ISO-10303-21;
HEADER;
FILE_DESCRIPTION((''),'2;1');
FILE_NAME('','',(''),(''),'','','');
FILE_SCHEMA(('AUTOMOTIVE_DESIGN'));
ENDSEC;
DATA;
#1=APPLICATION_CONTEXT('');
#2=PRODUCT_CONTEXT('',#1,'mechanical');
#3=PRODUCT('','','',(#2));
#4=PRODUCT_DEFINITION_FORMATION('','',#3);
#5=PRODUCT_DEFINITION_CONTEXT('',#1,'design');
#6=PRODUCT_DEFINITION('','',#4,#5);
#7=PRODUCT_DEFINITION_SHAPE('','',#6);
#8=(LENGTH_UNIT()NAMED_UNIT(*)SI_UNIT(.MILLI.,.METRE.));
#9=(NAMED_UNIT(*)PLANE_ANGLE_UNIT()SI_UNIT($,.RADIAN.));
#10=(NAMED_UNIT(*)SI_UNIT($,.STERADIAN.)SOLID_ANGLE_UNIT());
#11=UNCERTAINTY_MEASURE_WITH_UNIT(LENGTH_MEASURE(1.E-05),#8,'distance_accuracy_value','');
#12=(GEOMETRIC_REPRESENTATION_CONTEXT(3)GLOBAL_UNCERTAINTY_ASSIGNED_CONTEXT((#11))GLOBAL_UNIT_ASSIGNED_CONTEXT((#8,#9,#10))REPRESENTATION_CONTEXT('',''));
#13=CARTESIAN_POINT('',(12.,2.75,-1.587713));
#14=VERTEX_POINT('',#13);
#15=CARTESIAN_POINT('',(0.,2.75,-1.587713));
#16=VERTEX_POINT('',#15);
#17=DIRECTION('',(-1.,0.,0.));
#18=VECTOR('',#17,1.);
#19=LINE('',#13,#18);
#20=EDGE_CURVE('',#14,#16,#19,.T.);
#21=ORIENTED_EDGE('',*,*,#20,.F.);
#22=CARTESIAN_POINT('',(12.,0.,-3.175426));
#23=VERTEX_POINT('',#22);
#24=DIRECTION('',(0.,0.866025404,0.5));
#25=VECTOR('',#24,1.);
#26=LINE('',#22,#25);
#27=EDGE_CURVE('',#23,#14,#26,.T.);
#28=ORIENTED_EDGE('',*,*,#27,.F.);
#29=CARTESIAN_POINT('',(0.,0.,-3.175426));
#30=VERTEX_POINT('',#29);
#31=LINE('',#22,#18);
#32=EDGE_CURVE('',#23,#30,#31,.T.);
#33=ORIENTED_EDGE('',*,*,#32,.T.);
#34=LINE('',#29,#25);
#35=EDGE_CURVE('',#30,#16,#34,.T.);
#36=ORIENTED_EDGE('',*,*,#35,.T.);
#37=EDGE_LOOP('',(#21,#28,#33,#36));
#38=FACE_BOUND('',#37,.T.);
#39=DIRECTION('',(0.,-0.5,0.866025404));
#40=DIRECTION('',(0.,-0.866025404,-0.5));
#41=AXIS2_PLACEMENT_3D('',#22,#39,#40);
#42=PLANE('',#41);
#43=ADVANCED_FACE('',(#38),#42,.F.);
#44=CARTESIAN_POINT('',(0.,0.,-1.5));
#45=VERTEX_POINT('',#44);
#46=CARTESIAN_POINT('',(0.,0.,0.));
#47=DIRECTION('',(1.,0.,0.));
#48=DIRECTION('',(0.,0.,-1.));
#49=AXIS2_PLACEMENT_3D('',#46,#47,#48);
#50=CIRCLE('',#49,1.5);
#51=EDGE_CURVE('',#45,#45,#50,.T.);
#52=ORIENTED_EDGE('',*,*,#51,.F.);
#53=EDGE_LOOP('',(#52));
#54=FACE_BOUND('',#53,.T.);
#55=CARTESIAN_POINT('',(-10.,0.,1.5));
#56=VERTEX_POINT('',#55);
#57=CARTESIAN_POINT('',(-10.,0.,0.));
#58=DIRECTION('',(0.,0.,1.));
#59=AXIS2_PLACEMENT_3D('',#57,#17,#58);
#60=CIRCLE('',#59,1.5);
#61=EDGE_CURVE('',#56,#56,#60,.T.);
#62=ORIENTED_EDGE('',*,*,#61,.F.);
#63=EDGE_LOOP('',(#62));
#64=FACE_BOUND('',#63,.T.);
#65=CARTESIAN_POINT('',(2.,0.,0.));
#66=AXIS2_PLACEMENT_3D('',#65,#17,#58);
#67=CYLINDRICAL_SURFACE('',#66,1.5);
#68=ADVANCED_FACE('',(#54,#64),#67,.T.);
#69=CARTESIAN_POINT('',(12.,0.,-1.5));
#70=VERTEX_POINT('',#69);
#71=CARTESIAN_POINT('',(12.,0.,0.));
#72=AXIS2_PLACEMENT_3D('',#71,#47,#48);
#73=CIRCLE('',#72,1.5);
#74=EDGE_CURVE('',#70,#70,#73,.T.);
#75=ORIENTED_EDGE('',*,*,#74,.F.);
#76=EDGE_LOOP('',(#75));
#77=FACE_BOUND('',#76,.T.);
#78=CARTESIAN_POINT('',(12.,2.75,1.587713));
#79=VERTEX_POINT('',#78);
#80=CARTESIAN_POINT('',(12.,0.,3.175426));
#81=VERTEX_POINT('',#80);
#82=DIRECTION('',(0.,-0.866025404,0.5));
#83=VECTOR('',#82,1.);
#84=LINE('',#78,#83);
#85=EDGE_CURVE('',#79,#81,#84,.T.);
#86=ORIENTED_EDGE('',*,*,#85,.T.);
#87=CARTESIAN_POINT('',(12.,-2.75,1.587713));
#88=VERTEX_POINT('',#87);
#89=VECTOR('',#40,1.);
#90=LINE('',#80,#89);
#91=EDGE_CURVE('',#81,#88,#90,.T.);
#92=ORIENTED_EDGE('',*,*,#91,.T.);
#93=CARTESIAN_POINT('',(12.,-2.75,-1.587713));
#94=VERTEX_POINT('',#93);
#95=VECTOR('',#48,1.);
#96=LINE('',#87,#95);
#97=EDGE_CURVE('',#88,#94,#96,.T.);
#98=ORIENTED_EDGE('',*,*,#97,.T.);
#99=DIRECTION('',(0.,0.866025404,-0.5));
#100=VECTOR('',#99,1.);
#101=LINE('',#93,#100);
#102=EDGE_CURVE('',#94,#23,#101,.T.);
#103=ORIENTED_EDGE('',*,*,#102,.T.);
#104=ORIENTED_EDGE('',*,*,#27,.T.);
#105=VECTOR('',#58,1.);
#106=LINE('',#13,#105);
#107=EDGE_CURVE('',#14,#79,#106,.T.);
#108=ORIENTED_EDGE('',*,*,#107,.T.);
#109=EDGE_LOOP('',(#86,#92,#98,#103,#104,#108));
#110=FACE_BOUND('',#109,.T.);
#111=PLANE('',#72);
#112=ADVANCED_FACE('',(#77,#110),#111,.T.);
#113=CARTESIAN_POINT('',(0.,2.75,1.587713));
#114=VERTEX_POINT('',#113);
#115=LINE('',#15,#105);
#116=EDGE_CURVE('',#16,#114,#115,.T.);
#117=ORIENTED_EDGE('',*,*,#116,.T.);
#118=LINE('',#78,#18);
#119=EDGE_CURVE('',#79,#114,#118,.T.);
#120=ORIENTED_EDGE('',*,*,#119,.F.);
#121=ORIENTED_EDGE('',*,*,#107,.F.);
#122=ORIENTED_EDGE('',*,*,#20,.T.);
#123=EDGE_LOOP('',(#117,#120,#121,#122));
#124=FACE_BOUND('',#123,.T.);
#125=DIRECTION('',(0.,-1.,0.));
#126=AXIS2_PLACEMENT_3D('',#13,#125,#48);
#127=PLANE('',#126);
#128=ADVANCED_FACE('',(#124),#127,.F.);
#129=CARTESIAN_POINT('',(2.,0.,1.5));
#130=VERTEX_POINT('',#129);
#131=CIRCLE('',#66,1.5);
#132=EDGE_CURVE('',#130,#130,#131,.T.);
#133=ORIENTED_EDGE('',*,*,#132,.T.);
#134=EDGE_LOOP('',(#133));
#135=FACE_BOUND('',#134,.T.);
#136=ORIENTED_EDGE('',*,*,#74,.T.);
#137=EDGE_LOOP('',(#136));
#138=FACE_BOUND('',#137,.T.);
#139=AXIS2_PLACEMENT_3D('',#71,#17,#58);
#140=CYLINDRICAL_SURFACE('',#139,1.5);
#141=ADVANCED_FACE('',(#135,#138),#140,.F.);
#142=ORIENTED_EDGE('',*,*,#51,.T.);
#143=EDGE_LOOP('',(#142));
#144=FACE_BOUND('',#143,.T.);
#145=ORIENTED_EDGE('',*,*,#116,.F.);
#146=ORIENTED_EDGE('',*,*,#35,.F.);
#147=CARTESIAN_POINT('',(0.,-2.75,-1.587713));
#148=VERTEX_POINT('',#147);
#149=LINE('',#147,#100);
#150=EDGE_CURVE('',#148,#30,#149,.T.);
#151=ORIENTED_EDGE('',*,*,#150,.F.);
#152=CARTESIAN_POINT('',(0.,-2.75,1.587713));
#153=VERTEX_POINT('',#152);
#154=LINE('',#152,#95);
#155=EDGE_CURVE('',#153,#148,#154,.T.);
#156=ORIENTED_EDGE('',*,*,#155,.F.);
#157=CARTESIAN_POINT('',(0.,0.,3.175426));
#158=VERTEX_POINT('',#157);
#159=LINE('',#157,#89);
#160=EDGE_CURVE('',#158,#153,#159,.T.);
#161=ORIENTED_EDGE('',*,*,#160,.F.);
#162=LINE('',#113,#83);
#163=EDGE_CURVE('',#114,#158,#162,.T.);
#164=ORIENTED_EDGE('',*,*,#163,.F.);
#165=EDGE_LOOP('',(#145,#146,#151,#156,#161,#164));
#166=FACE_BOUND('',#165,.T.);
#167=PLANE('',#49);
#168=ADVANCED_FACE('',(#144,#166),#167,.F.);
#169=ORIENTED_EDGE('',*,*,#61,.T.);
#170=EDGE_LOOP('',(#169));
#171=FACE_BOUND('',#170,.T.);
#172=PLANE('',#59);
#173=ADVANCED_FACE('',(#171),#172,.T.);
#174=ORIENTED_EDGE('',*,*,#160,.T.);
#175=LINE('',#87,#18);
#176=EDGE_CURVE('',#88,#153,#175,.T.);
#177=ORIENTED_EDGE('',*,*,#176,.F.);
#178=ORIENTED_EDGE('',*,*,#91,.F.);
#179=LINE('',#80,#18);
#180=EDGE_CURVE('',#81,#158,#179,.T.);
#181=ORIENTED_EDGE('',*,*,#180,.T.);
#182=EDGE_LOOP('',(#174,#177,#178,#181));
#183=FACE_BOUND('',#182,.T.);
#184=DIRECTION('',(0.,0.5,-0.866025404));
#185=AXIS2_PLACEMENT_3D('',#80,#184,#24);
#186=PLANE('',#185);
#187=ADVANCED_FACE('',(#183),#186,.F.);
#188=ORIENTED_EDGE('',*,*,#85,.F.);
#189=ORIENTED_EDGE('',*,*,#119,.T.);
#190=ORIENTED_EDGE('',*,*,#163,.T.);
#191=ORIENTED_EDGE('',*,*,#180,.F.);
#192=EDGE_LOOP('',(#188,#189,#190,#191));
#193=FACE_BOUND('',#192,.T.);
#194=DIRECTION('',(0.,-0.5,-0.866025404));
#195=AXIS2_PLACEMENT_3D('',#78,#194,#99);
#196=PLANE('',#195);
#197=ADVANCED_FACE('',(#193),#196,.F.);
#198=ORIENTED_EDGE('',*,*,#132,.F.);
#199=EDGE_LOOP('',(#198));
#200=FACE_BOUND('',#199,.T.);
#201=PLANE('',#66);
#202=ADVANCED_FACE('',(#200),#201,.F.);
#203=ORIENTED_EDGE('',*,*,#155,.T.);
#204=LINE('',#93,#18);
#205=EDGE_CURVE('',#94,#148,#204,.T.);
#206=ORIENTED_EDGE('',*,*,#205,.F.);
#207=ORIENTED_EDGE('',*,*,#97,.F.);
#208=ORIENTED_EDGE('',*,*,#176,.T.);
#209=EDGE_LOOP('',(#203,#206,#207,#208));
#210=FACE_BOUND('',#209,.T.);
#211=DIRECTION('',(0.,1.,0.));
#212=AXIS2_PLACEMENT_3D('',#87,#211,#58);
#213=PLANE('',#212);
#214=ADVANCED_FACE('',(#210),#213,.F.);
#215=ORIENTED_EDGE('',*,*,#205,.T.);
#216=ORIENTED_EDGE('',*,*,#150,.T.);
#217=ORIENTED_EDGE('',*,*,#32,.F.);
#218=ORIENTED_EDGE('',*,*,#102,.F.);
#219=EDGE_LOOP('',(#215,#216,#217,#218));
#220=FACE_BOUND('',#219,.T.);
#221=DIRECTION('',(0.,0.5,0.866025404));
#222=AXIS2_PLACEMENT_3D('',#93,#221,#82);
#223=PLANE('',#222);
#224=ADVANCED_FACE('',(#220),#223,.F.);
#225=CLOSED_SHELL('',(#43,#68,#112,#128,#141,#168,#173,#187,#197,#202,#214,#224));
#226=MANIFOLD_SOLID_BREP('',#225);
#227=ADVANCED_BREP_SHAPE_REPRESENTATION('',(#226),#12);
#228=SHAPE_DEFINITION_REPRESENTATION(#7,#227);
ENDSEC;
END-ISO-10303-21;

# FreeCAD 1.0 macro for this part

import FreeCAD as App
import Part
import Sketcher
Q = App.Units.Quantity


def add_polygon(sketch, points):
    """Adds a closed chain of lines whose ends are joined by coincident constraints."""
    first, n = sketch.GeometryCount, len(points)
    for a, b in zip(points, points[1:] + points[:1]):
        sketch.addGeometry(Part.LineSegment(App.Vector(*a, 0), App.Vector(*b, 0)), False)
    for i in range(n):
        sketch.addConstraint(Sketcher.Constraint("Coincident", first + i, 2, first + (i + 1) % n, 1))

doc = App.newDocument("Part")
params = doc.addObject("Spreadsheet::Sheet", "Params")
for row, (alias, value) in enumerate([
    ("sketch1_diameter", "3 mm"),
    ("pad1_length", "12 mm"),
    ("sketch2_diameter", "3 mm"),
    ("pad2_length", "10 mm"),
    ("pad2_length2", "2 mm"),
], start=1):
    params.set(f"A{row}", alias)
    params.set(f"B{row}", "=" + value)
    params.setAlias(f"B{row}", alias)

body = doc.addObject("PartDesign::Body", "Body")

sketch1 = body.newObject("Sketcher::SketchObject", "Sketch")
sketch1.AttachmentSupport = (doc.getObject("YZ_Plane"), [""])
sketch1.MapMode = "FlatFace"
add_polygon(sketch1, [(2.8, -1.6), (2.8, 1.6), (0, 3.2), (-2.8, 1.6), (-2.8, -1.6), (0, -3.2)])
sketch1.addGeometry(Part.Circle(App.Vector(0, 0, 0), App.Vector(0, 0, 1), 1.5), False)
sketch1.addConstraint(Sketcher.Constraint("Vertical", 0))
sketch1.addConstraint(Sketcher.Constraint("Vertical", 3))
sketch1.addConstraint(Sketcher.Constraint("Coincident", 6, 3, -1, 1))
sketch1.addConstraint(Sketcher.Constraint("Symmetric", 0, 2, 3, 2, -1, 1))
sketch1.addConstraint(Sketcher.Constraint("Symmetric", 1, 2, 4, 2, -1, 1))
sketch1.addConstraint(Sketcher.Constraint("PointOnObject", 1, 2, -2))
sketch1.addConstraint(Sketcher.Constraint("Parallel", 2, 5))
sketch1.addConstraint(Sketcher.Constraint("Horizontal", 0, 2, 2, 2))
sketch1.addConstraint(Sketcher.Constraint("Diameter", 6, 3.0))
sketch1.addConstraint(Sketcher.Constraint("Angle", 1, Q("150 deg")))
sketch1.addConstraint(Sketcher.Constraint("DistanceX", 2, 2, 0, 2, 5.5))
sketch1.addConstraint(Sketcher.Constraint("DistanceY", 0, 1, 0, 2, 3.175426))
sketch1.setExpression("Constraints[14]", "Params.sketch1_diameter")
pad1 = body.newObject("PartDesign::Pad", "Pad")
pad1.Profile = sketch1
pad1.setExpression("Length", "Params.pad1_length")

sketch2 = body.newObject("Sketcher::SketchObject", "Sketch001")
sketch2.AttachmentSupport = (doc.getObject("YZ_Plane"), [""])
sketch2.MapMode = "FlatFace"
sketch2.addGeometry(Part.Circle(App.Vector(0, 0, 0), App.Vector(0, 0, 1), 1.5), False)
sketch2.addConstraint(Sketcher.Constraint("Coincident", 0, 3, -1, 1))
sketch2.addConstraint(Sketcher.Constraint("Diameter", 0, 3.0))
sketch2.setExpression("Constraints[1]", "Params.sketch2_diameter")
pad2 = body.newObject("PartDesign::Pad", "Pad001")
pad2.Profile = sketch2
pad2.Type = "TwoLengths"
pad2.setExpression("Length", "Params.pad2_length")
pad2.setExpression("Length2", "Params.pad2_length2")
pad2.Reversed = True

doc.recompute()
